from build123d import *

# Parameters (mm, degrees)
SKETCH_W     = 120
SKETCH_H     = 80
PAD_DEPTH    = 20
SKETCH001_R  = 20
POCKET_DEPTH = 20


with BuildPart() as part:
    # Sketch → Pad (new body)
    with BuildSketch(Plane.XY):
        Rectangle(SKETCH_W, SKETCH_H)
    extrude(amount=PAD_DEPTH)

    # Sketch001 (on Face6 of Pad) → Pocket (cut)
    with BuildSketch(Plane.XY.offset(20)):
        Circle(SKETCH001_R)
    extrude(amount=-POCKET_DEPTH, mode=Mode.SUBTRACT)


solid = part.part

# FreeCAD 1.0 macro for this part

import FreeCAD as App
import Part
import Sketcher

V = App.Vector
Q = App.Units.Quantity

doc = App.newDocument("Part")
body = doc.addObject("PartDesign::Body", "Body")

# Sketch on XY plane
sketch1 = body.newObject("Sketcher::SketchObject", "Sketch")
sketch1.AttachmentSupport = (doc.getObject("XY_Plane"), [""])
sketch1.MapMode = "FlatFace"
sketch1.addGeometry(Part.LineSegment(V(-60, 40, 0), V(-60, -40, 0)), False)
sketch1.addGeometry(Part.LineSegment(V(-60, -40, 0), V(60, -40, 0)), False)
sketch1.addGeometry(Part.LineSegment(V(60, -40, 0), V(60, 40, 0)), False)
sketch1.addGeometry(Part.LineSegment(V(60, 40, 0), V(-60, 40, 0)), False)
sketch1.addConstraint(Sketcher.Constraint("Coincident", 0, 2, 1, 1))
sketch1.addConstraint(Sketcher.Constraint("Coincident", 1, 2, 2, 1))
sketch1.addConstraint(Sketcher.Constraint("Coincident", 2, 2, 3, 1))
sketch1.addConstraint(Sketcher.Constraint("Coincident", 3, 2, 0, 1))
sketch1.addConstraint(Sketcher.Constraint("Vertical", 0))
sketch1.addConstraint(Sketcher.Constraint("Horizontal", 1))
sketch1.addConstraint(Sketcher.Constraint("Vertical", 2))
sketch1.addConstraint(Sketcher.Constraint("Horizontal", 3))
sketch1.addConstraint(Sketcher.Constraint("Symmetric", 0, 2, 2, 2, -1, 1))
sketch1.addConstraint(Sketcher.Constraint("DistanceX", 1, 1, 1, 2, Q("120 mm")))
sketch1.addConstraint(Sketcher.Constraint("DistanceY", 0, 2, 0, 1, Q("80 mm")))
pad1 = body.newObject("PartDesign::Pad", "Pad")
pad1.Profile = sketch1
pad1.Length = 20

# Sketch on XY plane
sketch2 = body.newObject("Sketcher::SketchObject", "Sketch001")
sketch2.AttachmentSupport = (doc.getObject("XY_Plane"), [""])
sketch2.MapMode = "FlatFace"
sketch2.AttachmentOffset = App.Placement(V(0, 0, 20), App.Rotation())
sketch2.addGeometry(Part.Circle(V(0, 0, 0), V(0, 0, 1), 20), False)
sketch2.addConstraint(Sketcher.Constraint("Coincident", 0, 3, -1, 1))
sketch2.addConstraint(Sketcher.Constraint("Diameter", 0, Q("40 mm")))
pocket1 = body.newObject("PartDesign::Pocket", "Pocket")
pocket1.Profile = sketch2
pocket1.Length = 20

doc.recompute()
